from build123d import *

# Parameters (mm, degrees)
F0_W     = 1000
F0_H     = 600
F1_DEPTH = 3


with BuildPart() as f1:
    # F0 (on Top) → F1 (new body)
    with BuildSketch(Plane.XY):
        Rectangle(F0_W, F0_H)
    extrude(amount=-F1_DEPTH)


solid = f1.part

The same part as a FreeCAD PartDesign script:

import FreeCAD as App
import Part
import Sketcher


def add_polygon(sketch, points):
    """Adds a closed chain of lines whose ends are joined by coincident constraints."""
    first, n = sketch.GeometryCount, len(points)
    for a, b in zip(points, points[1:] + points[:1]):
        sketch.addGeometry(Part.LineSegment(App.Vector(*a, 0), App.Vector(*b, 0)), False)
    for i in range(n):
        sketch.addConstraint(Sketcher.Constraint("Coincident", first + i, 2, first + (i + 1) % n, 1))

doc = App.newDocument("Part")
body = doc.addObject("PartDesign::Body", "Body")

sketch1 = doc.addObject("Sketcher::SketchObject", "Sketch")
body.addObject(sketch1)
sketch1.AttachmentSupport = (doc.XY_Plane, [""])
sketch1.MapMode = "FlatFace"
add_polygon(sketch1, [(-500, 300), (-500, -300), (500, -300), (500, 300)])
sketch1.addConstraint([
    Sketcher.Constraint("Vertical", 0),
    Sketcher.Constraint("Horizontal", 1),
    Sketcher.Constraint("Vertical", 2),
    Sketcher.Constraint("Horizontal", 3),
    Sketcher.Constraint("Symmetric", 0, 2, 2, 2, -1, 1),
    Sketcher.Constraint("DistanceX", 1, 1, 1, 2, 1000.0),
    Sketcher.Constraint("DistanceY", 0, 2, 0, 1, 600.0),
])
pad1 = doc.addObject("PartDesign::Pad", "Pad")
body.addObject(pad1)
pad1.Profile = sketch1
pad1.Length = 3
pad1.Reversed = True

doc.recompute()
